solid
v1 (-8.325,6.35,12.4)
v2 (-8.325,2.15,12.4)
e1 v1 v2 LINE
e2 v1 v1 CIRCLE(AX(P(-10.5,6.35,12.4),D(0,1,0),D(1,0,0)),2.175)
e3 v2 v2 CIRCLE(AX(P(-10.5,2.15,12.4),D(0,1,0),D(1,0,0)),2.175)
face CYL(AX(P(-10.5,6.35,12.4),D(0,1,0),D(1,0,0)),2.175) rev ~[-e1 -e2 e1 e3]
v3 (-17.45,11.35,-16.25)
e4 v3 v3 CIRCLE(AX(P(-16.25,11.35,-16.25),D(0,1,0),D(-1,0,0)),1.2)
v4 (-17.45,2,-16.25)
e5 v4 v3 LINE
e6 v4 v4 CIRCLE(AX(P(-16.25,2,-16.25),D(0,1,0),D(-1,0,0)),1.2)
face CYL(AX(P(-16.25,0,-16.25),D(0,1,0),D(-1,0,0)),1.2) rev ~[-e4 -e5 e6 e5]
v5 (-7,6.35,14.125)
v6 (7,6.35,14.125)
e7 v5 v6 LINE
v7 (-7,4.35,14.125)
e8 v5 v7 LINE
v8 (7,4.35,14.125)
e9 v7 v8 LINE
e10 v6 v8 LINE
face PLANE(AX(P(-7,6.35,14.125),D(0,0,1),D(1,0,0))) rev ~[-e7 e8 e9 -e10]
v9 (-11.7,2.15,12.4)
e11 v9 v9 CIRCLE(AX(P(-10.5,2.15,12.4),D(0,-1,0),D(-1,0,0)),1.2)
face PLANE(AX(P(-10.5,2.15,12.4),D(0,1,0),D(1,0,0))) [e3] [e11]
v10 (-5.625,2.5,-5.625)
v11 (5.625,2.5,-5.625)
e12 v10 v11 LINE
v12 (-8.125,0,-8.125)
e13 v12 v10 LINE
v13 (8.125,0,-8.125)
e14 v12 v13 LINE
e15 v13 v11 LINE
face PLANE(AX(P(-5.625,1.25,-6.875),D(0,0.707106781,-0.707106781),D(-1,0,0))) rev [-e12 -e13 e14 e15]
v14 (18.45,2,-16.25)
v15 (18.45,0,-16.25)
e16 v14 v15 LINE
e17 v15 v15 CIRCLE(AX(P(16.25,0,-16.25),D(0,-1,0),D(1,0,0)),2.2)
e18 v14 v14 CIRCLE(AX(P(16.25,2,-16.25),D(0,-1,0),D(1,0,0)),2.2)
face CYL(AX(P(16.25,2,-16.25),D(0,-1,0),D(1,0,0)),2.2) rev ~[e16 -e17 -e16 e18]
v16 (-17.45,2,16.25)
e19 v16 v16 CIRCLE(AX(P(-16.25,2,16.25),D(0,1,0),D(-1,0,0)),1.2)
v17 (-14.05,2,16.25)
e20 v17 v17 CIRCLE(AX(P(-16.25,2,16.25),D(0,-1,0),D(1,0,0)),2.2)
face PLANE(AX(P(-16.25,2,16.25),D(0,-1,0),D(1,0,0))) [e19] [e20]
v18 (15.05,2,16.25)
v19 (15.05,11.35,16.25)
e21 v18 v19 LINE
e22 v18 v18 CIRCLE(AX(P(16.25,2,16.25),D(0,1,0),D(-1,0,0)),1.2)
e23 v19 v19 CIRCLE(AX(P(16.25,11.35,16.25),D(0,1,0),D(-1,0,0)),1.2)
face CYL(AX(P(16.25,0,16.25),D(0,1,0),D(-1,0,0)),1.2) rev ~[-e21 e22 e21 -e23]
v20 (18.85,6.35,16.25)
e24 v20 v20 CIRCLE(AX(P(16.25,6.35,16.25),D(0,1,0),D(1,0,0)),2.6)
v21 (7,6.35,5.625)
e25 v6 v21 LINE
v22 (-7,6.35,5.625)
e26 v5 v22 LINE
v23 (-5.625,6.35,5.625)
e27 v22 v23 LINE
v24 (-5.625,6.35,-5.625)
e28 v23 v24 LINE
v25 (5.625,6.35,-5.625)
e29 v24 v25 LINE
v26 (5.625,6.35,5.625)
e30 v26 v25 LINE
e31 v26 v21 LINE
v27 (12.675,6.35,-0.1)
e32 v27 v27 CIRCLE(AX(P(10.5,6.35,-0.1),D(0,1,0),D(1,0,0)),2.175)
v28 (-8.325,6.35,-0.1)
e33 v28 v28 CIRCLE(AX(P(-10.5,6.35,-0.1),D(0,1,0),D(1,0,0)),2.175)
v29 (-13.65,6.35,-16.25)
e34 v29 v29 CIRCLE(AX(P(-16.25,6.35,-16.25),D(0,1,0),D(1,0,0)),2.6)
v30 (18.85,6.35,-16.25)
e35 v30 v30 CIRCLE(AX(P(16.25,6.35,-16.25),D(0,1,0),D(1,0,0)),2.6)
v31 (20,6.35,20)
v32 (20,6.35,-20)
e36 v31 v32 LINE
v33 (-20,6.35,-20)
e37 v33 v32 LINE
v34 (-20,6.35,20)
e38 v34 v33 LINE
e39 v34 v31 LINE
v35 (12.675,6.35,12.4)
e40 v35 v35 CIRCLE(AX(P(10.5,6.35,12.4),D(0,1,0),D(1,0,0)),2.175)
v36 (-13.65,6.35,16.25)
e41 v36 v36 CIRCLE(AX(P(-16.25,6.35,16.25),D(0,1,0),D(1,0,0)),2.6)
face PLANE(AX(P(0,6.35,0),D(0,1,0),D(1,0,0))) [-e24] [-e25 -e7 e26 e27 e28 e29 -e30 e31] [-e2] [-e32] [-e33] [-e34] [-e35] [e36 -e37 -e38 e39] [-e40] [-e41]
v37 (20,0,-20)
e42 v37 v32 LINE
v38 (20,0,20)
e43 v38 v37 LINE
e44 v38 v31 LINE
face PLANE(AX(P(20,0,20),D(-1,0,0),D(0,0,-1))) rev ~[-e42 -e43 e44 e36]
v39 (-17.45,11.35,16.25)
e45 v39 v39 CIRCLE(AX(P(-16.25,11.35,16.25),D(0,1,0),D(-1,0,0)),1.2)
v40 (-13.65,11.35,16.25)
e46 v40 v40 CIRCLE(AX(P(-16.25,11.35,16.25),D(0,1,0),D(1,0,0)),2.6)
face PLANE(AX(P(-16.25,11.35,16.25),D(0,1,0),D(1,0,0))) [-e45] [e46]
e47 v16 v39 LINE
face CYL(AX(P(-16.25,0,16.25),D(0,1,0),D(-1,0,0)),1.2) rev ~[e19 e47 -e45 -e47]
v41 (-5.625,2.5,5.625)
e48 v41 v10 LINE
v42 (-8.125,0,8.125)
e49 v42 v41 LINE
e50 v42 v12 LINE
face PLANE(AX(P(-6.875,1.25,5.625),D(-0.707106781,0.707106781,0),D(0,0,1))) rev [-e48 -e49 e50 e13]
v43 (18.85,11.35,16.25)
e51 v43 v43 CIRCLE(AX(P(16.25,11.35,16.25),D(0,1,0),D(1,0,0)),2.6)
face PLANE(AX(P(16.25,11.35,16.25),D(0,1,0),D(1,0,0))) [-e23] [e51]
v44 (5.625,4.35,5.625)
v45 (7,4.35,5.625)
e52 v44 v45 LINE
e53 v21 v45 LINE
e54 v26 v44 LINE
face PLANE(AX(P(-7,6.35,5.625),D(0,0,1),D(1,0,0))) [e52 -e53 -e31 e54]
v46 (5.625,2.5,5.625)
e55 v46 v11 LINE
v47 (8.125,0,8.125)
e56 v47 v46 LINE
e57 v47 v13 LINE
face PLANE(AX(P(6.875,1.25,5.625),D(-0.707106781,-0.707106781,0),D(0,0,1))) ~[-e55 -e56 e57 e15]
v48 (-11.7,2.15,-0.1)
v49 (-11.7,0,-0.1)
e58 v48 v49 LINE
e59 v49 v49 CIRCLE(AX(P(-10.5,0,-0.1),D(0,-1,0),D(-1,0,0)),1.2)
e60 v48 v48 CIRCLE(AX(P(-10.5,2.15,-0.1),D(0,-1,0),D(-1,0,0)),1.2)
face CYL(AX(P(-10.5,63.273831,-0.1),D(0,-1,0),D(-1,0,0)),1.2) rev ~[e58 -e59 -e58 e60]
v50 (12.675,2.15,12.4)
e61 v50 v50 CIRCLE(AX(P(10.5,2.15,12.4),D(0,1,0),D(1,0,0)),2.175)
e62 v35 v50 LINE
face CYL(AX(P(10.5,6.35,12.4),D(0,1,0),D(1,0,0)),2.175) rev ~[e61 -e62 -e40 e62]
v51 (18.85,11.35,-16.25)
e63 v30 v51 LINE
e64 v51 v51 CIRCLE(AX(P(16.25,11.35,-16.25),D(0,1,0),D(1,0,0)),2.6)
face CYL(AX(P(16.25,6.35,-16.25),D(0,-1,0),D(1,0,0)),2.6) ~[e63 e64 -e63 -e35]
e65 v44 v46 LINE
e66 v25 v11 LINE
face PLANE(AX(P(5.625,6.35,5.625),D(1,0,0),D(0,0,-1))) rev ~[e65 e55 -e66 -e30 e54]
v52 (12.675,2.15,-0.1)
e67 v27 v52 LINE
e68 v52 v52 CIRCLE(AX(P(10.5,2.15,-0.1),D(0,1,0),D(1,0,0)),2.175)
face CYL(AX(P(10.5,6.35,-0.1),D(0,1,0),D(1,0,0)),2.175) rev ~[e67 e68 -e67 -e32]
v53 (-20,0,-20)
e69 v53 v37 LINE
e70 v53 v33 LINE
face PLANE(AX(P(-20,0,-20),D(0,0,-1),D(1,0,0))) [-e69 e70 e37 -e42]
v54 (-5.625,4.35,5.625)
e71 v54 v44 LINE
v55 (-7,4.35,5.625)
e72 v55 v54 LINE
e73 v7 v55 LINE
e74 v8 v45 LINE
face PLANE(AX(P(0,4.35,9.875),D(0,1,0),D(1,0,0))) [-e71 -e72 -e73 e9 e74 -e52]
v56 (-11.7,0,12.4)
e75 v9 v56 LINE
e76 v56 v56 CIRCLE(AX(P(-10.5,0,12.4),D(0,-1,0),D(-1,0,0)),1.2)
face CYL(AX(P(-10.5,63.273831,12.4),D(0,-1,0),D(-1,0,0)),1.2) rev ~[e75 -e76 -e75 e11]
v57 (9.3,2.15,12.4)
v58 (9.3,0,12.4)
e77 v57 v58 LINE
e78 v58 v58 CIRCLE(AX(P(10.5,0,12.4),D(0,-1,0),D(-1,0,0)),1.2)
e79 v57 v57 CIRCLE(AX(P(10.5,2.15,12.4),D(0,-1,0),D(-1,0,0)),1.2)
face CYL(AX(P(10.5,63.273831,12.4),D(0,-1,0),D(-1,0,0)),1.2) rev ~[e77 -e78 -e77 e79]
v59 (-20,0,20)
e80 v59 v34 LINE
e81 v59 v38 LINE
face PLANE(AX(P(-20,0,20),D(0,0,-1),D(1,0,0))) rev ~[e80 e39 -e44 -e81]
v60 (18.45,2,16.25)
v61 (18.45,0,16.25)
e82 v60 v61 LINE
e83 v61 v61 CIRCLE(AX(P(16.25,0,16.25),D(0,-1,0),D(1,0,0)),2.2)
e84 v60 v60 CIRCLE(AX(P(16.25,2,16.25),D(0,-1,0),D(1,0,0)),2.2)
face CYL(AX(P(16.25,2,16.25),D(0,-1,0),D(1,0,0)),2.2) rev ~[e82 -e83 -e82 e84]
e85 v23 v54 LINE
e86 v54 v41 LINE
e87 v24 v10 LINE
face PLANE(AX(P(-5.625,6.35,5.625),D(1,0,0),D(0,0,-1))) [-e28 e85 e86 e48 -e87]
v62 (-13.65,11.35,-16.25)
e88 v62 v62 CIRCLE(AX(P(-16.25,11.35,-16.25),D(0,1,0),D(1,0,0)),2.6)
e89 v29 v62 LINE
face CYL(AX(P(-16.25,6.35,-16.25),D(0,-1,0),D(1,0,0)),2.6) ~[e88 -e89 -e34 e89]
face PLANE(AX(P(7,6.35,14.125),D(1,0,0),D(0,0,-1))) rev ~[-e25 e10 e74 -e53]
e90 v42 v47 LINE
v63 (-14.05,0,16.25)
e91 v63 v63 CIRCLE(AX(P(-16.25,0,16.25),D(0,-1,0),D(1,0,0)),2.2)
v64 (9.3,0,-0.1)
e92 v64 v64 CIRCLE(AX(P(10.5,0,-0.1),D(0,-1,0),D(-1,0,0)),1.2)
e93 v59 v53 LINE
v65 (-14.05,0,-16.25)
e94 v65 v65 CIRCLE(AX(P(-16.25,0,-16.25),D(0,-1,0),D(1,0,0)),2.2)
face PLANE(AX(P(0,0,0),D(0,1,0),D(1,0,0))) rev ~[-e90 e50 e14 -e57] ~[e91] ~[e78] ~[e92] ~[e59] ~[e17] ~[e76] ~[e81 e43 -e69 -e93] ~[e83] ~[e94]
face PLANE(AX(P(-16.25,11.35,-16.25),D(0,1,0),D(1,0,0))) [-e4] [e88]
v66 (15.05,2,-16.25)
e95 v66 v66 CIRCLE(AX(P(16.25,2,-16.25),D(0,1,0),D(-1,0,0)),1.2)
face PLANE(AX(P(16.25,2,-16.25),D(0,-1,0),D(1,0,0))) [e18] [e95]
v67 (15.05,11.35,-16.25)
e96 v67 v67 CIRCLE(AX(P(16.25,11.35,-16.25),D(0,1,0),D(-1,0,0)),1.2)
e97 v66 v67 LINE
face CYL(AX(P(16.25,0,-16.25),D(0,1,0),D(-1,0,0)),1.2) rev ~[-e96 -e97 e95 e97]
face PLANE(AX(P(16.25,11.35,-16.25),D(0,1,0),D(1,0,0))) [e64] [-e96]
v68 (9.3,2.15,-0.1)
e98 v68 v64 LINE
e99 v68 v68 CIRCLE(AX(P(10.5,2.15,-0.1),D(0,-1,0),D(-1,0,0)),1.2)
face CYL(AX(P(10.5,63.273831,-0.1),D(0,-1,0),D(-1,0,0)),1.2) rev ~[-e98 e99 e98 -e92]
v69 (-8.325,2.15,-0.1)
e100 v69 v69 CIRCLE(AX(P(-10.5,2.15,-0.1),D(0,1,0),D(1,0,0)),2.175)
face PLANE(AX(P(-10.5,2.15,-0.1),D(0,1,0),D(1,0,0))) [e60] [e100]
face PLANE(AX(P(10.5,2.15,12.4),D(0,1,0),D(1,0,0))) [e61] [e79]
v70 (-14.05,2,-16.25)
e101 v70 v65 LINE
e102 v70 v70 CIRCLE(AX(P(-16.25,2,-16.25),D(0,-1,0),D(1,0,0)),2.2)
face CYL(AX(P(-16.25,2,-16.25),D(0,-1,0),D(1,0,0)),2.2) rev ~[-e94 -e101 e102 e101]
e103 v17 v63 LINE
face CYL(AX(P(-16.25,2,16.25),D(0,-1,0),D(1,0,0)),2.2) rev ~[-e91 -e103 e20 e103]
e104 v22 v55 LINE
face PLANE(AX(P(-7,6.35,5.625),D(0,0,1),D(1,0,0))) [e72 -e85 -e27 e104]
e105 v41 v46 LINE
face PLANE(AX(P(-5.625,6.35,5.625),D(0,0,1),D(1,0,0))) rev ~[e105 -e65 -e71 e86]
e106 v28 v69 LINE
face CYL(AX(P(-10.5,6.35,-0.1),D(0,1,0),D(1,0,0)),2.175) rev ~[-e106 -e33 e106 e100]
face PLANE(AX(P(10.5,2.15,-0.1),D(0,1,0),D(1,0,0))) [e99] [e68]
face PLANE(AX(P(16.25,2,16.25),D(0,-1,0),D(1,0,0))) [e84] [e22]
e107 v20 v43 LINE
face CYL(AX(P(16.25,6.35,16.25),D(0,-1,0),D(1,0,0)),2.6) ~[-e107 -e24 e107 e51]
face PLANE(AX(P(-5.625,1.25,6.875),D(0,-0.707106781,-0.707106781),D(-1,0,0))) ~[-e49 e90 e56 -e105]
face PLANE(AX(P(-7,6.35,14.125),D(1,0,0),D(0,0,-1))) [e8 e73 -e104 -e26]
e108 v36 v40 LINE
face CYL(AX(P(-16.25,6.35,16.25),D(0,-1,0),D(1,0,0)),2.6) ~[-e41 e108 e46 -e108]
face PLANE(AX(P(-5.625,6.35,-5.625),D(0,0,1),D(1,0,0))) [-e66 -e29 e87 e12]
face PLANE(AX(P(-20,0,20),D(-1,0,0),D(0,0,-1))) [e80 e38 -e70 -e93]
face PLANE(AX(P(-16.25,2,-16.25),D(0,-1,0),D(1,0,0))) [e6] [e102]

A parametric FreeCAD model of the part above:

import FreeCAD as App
import Part
import Sketcher
Q = App.Units.Quantity


def edges_at(feature, points):
    """Names of the edges that pass closest to the given points."""
    edges = feature.Shape.Edges
    near = lambda p: min(range(len(edges)), key=lambda i: edges[i].distToShape(Part.Vertex(*p))[0])
    return sorted({f"Edge{near(p) + 1}" for p in points})

doc = App.newDocument("Part")
body = doc.addObject("PartDesign::Body", "Body")

# Sketch on XZ plane
sketch1 = body.newObject("Sketcher::SketchObject", "Sketch")
sketch1.AttachmentSupport = (doc.getObject("XZ_Plane"), [""])
sketch1.MapMode = "FlatFace"
sketch1.addGeometry(Part.LineSegment(App.Vector(-20, -20, 0), App.Vector(-20, 20, 0)), False)
sketch1.addGeometry(Part.LineSegment(App.Vector(-20, 20, 0), App.Vector(20, 20, 0)), False)
sketch1.addGeometry(Part.LineSegment(App.Vector(20, 20, 0), App.Vector(20, -20, 0)), False)
sketch1.addGeometry(Part.LineSegment(App.Vector(20, -20, 0), App.Vector(-20, -20, 0)), False)
sketch1.addConstraint(Sketcher.Constraint("Coincident", 0, 2, 1, 1))
sketch1.addConstraint(Sketcher.Constraint("Coincident", 1, 2, 2, 1))
sketch1.addConstraint(Sketcher.Constraint("Coincident", 2, 2, 3, 1))
sketch1.addConstraint(Sketcher.Constraint("Coincident", 3, 2, 0, 1))
sketch1.addConstraint(Sketcher.Constraint("Vertical", 0))
sketch1.addConstraint(Sketcher.Constraint("Horizontal", 1))
sketch1.addConstraint(Sketcher.Constraint("Vertical", 2))
sketch1.addConstraint(Sketcher.Constraint("Horizontal", 3))
sketch1.addConstraint(Sketcher.Constraint("Symmetric", 0, 2, 2, 2, -1, 1))
sketch1.addConstraint(Sketcher.Constraint("Equal", 3, 0))
sketch1.addConstraint(Sketcher.Constraint("DistanceX", 1, 1, 1, 2, Q("40 mm")))
pad1 = body.newObject("PartDesign::Pad", "Pad")
pad1.Profile = sketch1
pad1.Length = 6.35
pad1.Reversed = True

# Sketch on XZ plane
sketch2 = body.newObject("Sketcher::SketchObject", "Sketch001")
sketch2.AttachmentSupport = (doc.getObject("XZ_Plane"), [""])
sketch2.MapMode = "FlatFace"
sketch2.AttachmentOffset = App.Placement(App.Vector(0, 0, -6.35), App.Rotation())
sketch2.addGeometry(Part.LineSegment(App.Vector(-6, -6, 0), App.Vector(-6, 6, 0)), False)
sketch2.addGeometry(Part.LineSegment(App.Vector(-6, 6, 0), App.Vector(6, 6, 0)), False)
sketch2.addGeometry(Part.LineSegment(App.Vector(6, 6, 0), App.Vector(6, -6, 0)), False)
sketch2.addGeometry(Part.LineSegment(App.Vector(6, -6, 0), App.Vector(-6, -6, 0)), False)
sketch2.addConstraint(Sketcher.Constraint("Coincident", 0, 2, 1, 1))
sketch2.addConstraint(Sketcher.Constraint("Coincident", 1, 2, 2, 1))
sketch2.addConstraint(Sketcher.Constraint("Coincident", 2, 2, 3, 1))
sketch2.addConstraint(Sketcher.Constraint("Coincident", 3, 2, 0, 1))
sketch2.addConstraint(Sketcher.Constraint("Vertical", 0))
sketch2.addConstraint(Sketcher.Constraint("Horizontal", 1))
sketch2.addConstraint(Sketcher.Constraint("Vertical", 2))
sketch2.addConstraint(Sketcher.Constraint("Horizontal", 3))
sketch2.addConstraint(Sketcher.Constraint("Symmetric", 0, 2, 2, 2, -1, 1))
sketch2.addConstraint(Sketcher.Constraint("Equal", 3, 0))
sketch2.addConstraint(Sketcher.Constraint("DistanceX", 1, 1, 1, 2, Q("11.25 mm")))
pocket1 = body.newObject("PartDesign::Pocket", "Pocket")
pocket1.Profile = sketch2
pocket1.Type = "ThroughAll"
pocket1.Reversed = True

# Sketch on XZ plane
sketch3 = body.newObject("Sketcher::SketchObject", "Sketch002")
sketch3.AttachmentSupport = (doc.getObject("XZ_Plane"), [""])
sketch3.MapMode = "FlatFace"
sketch3.AttachmentOffset = App.Placement(App.Vector(0, 0, -6.35), App.Rotation())
sketch3.addGeometry(Part.LineSegment(App.Vector(-7, 6, 0), App.Vector(-7, 14, 0)), False)
sketch3.addGeometry(Part.LineSegment(App.Vector(-7, 14, 0), App.Vector(7, 14, 0)), False)
sketch3.addGeometry(Part.LineSegment(App.Vector(7, 14, 0), App.Vector(7, 6, 0)), False)
sketch3.addGeometry(Part.LineSegment(App.Vector(7, 6, 0), App.Vector(-7, 6, 0)), False)
sketch3.addConstraint(Sketcher.Constraint("Coincident", 0, 2, 1, 1))
sketch3.addConstraint(Sketcher.Constraint("Coincident", 1, 2, 2, 1))
sketch3.addConstraint(Sketcher.Constraint("Coincident", 2, 2, 3, 1))
sketch3.addConstraint(Sketcher.Constraint("Coincident", 3, 2, 0, 1))
sketch3.addConstraint(Sketcher.Constraint("Vertical", 0))
sketch3.addConstraint(Sketcher.Constraint("Horizontal", 1))
sketch3.addConstraint(Sketcher.Constraint("Vertical", 2))
sketch3.addConstraint(Sketcher.Constraint("Horizontal", 3))
sketch3.addConstraint(Sketcher.Constraint("DistanceX", 1, 1, 1, 2, Q("14 mm")))
sketch3.addConstraint(Sketcher.Constraint("DistanceY", 0, 1, 0, 2, Q("8.5 mm")))
sketch3.addConstraint(Sketcher.Constraint("DistanceX", 0, 2, -1, 1, Q("7 mm")))
sketch3.addConstraint(Sketcher.Constraint("DistanceY", -1, 1, 0, 2, Q("14.125 mm")))
pocket2 = body.newObject("PartDesign::Pocket", "Pocket001")
pocket2.Profile = sketch3
pocket2.Length = 2
pocket2.Reversed = True

# Sketch on XZ plane
sketch4 = body.newObject("Sketcher::SketchObject", "Sketch003")
sketch4.AttachmentSupport = (doc.getObject("XZ_Plane"), [""])
sketch4.MapMode = "FlatFace"
sketch4.AttachmentOffset = App.Placement(App.Vector(0, 0, -6.35), App.Rotation())
sketch4.addGeometry(Part.Circle(App.Vector(10.5, -0.1, 0), App.Vector(0, 0, 1), 1.2), False)
sketch4.addGeometry(Part.Circle(App.Vector(10.5, 12.4, 0), App.Vector(0, 0, 1), 1.2), False)
sketch4.addGeometry(Part.Circle(App.Vector(-10.5, 12.4, 0), App.Vector(0, 0, 1), 1.2), False)
sketch4.addGeometry(Part.Circle(App.Vector(-10.5, -0.1, 0), App.Vector(0, 0, 1), 1.2), False)
sketch4.addConstraint(Sketcher.Constraint("Equal", 0, 1))
sketch4.addConstraint(Sketcher.Constraint("Equal", 1, 2))
sketch4.addConstraint(Sketcher.Constraint("Equal", 2, 3))
sketch4.addConstraint(Sketcher.Constraint("Symmetric", 1, 3, 2, 3, -2))
sketch4.addConstraint(Sketcher.Constraint("Symmetric", 0, 3, 3, 3, -2))
sketch4.addConstraint(Sketcher.Constraint("Vertical", 0, 3, 1, 3))
sketch4.addConstraint(Sketcher.Constraint("Diameter", 0, Q("2.4 mm")))
sketch4.addConstraint(Sketcher.Constraint("DistanceX", 2, 3, 1, 3, Q("21 mm")))
sketch4.addConstraint(Sketcher.Constraint("DistanceY", 0, 3, -1, 1, Q("0.1 mm")))
sketch4.addConstraint(Sketcher.Constraint("DistanceY", -1, 1, 1, 3, Q("12.4 mm")))
doc.recompute()
hole = body.newObject("PartDesign::Hole", "Hole")
hole.Profile = sketch4
hole.ThreadType = "None"
hole.Diameter = 2.4
hole.DepthType = "ThroughAll"
hole.Reversed = True

# Sketch on XZ plane
sketch5 = body.newObject("Sketcher::SketchObject", "Sketch004")
sketch5.AttachmentSupport = (doc.getObject("XZ_Plane"), [""])
sketch5.MapMode = "FlatFace"
sketch5.AttachmentOffset = App.Placement(App.Vector(0, 0, -6.35), App.Rotation())
sketch5.addGeometry(Part.Circle(App.Vector(-16.2, -16.2, 0), App.Vector(0, 0, 1), 2.6), False)
sketch5.addGeometry(Part.Circle(App.Vector(16.2, -16.2, 0), App.Vector(0, 0, 1), 2.6), False)
sketch5.addGeometry(Part.Circle(App.Vector(16.2, 16.2, 0), App.Vector(0, 0, 1), 2.6), False)
sketch5.addGeometry(Part.Circle(App.Vector(-16.2, 16.2, 0), App.Vector(0, 0, 1), 2.6), False)
sketch5.addConstraint(Sketcher.Constraint("Equal", 0, 1))
sketch5.addConstraint(Sketcher.Constraint("Equal", 1, 2))
sketch5.addConstraint(Sketcher.Constraint("Equal", 2, 3))
sketch5.addConstraint(Sketcher.Constraint("Symmetric", 0, 3, 2, 3, -1, 1))
sketch5.addConstraint(Sketcher.Constraint("Symmetric", 1, 3, 3, 3, -1, 1))
sketch5.addConstraint(Sketcher.Constraint("Symmetric", 0, 3, 1, 3, -2))
sketch5.addConstraint(Sketcher.Constraint("Diameter", 0, Q("5.2 mm")))
sketch5.addConstraint(Sketcher.Constraint("DistanceX", 0, 3, 1, 3, Q("32.5 mm")))
sketch5.addConstraint(Sketcher.Constraint("DistanceY", 1, 3, 2, 3, Q("32.5 mm")))
pad2 = body.newObject("PartDesign::Pad", "Pad001")
pad2.Profile = sketch5
pad2.Length = 5
pad2.Reversed = True

# Sketch on XZ plane
sketch6 = body.newObject("Sketcher::SketchObject", "Sketch005")
sketch6.AttachmentSupport = (doc.getObject("XZ_Plane"), [""])
sketch6.MapMode = "FlatFace"
sketch6.addGeometry(Part.Circle(App.Vector(-16.2, -16.2, 0), App.Vector(0, 0, 1), 1.2), False)
sketch6.addGeometry(Part.Circle(App.Vector(-16.2, 16.2, 0), App.Vector(0, 0, 1), 1.2), False)
sketch6.addGeometry(Part.Circle(App.Vector(16.2, 16.2, 0), App.Vector(0, 0, 1), 1.2), False)
sketch6.addGeometry(Part.Circle(App.Vector(16.2, -16.2, 0), App.Vector(0, 0, 1), 1.2), False)
sketch6.addConstraint(Sketcher.Constraint("Equal", 0, 1))
sketch6.addConstraint(Sketcher.Constraint("Equal", 1, 2))
sketch6.addConstraint(Sketcher.Constraint("Equal", 2, 3))
sketch6.addConstraint(Sketcher.Constraint("Symmetric", 0, 3, 2, 3, -1, 1))
sketch6.addConstraint(Sketcher.Constraint("Symmetric", 1, 3, 3, 3, -1, 1))
sketch6.addConstraint(Sketcher.Constraint("Symmetric", 1, 3, 2, 3, -2))
sketch6.addConstraint(Sketcher.Constraint("Diameter", 0, Q("2.4 mm")))
sketch6.addConstraint(Sketcher.Constraint("DistanceY", 0, 3, 1, 3, Q("32.5 mm")))
sketch6.addConstraint(Sketcher.Constraint("DistanceX", 1, 3, 2, 3, Q("32.5 mm")))
doc.recompute()
hole2 = body.newObject("PartDesign::Hole", "Hole001")
hole2.Profile = sketch6
hole2.ThreadType = "None"
hole2.Diameter = 2.4
hole2.DepthType = "ThroughAll"
hole2.HoleCutType = "Counterbore"
hole2.HoleCutDiameter = 4.4
hole2.HoleCutDepth = 2

# Sketch on XZ plane
sketch7 = body.newObject("Sketcher::SketchObject", "Sketch006")
sketch7.AttachmentSupport = (doc.getObject("XZ_Plane"), [""])
sketch7.MapMode = "FlatFace"
sketch7.AttachmentOffset = App.Placement(App.Vector(0, 0, -6.35), App.Rotation())
sketch7.addGeometry(Part.Circle(App.Vector(-10.5, 12.4, 0), App.Vector(0, 0, 1), 2.2), False)
sketch7.addGeometry(Part.Circle(App.Vector(-10.5, -0.1, 0), App.Vector(0, 0, 1), 2.2), False)
sketch7.addGeometry(Part.Circle(App.Vector(10.5, 12.4, 0), App.Vector(0, 0, 1), 2.2), False)
sketch7.addGeometry(Part.Circle(App.Vector(10.5, -0.1, 0), App.Vector(0, 0, 1), 2.2), False)
sketch7.addConstraint(Sketcher.Constraint("Equal", 0, 1))
sketch7.addConstraint(Sketcher.Constraint("Equal", 1, 2))
sketch7.addConstraint(Sketcher.Constraint("Equal", 2, 3))
sketch7.addConstraint(Sketcher.Constraint("Symmetric", 0, 3, 2, 3, -2))
sketch7.addConstraint(Sketcher.Constraint("Symmetric", 1, 3, 3, 3, -2))
sketch7.addConstraint(Sketcher.Constraint("Vertical", 0, 3, 1, 3))
sketch7.addConstraint(Sketcher.Constraint("Diameter", 0, Q("4.35 mm")))
sketch7.addConstraint(Sketcher.Constraint("DistanceX", 0, 3, 2, 3, Q("21 mm")))
sketch7.addConstraint(Sketcher.Constraint("DistanceY", -1, 1, 0, 3, Q("12.4 mm")))
sketch7.addConstraint(Sketcher.Constraint("DistanceY", 1, 3, -1, 1, Q("0.1 mm")))
pocket3 = body.newObject("PartDesign::Pocket", "Pocket002")
pocket3.Profile = sketch7
pocket3.Length = 4.2
pocket3.Reversed = True
doc.recompute()

chamfer = body.newObject("PartDesign::Chamfer", "Chamfer")
chamfer.Base = (pocket3, edges_at(pocket3, [
    (5.625, 0, 0),
    (0, 0, 5.625),
    (-5.625, 0, 0),
    (0, 0, -5.625),
]))
chamfer.Size = 2.5

doc.recompute()
